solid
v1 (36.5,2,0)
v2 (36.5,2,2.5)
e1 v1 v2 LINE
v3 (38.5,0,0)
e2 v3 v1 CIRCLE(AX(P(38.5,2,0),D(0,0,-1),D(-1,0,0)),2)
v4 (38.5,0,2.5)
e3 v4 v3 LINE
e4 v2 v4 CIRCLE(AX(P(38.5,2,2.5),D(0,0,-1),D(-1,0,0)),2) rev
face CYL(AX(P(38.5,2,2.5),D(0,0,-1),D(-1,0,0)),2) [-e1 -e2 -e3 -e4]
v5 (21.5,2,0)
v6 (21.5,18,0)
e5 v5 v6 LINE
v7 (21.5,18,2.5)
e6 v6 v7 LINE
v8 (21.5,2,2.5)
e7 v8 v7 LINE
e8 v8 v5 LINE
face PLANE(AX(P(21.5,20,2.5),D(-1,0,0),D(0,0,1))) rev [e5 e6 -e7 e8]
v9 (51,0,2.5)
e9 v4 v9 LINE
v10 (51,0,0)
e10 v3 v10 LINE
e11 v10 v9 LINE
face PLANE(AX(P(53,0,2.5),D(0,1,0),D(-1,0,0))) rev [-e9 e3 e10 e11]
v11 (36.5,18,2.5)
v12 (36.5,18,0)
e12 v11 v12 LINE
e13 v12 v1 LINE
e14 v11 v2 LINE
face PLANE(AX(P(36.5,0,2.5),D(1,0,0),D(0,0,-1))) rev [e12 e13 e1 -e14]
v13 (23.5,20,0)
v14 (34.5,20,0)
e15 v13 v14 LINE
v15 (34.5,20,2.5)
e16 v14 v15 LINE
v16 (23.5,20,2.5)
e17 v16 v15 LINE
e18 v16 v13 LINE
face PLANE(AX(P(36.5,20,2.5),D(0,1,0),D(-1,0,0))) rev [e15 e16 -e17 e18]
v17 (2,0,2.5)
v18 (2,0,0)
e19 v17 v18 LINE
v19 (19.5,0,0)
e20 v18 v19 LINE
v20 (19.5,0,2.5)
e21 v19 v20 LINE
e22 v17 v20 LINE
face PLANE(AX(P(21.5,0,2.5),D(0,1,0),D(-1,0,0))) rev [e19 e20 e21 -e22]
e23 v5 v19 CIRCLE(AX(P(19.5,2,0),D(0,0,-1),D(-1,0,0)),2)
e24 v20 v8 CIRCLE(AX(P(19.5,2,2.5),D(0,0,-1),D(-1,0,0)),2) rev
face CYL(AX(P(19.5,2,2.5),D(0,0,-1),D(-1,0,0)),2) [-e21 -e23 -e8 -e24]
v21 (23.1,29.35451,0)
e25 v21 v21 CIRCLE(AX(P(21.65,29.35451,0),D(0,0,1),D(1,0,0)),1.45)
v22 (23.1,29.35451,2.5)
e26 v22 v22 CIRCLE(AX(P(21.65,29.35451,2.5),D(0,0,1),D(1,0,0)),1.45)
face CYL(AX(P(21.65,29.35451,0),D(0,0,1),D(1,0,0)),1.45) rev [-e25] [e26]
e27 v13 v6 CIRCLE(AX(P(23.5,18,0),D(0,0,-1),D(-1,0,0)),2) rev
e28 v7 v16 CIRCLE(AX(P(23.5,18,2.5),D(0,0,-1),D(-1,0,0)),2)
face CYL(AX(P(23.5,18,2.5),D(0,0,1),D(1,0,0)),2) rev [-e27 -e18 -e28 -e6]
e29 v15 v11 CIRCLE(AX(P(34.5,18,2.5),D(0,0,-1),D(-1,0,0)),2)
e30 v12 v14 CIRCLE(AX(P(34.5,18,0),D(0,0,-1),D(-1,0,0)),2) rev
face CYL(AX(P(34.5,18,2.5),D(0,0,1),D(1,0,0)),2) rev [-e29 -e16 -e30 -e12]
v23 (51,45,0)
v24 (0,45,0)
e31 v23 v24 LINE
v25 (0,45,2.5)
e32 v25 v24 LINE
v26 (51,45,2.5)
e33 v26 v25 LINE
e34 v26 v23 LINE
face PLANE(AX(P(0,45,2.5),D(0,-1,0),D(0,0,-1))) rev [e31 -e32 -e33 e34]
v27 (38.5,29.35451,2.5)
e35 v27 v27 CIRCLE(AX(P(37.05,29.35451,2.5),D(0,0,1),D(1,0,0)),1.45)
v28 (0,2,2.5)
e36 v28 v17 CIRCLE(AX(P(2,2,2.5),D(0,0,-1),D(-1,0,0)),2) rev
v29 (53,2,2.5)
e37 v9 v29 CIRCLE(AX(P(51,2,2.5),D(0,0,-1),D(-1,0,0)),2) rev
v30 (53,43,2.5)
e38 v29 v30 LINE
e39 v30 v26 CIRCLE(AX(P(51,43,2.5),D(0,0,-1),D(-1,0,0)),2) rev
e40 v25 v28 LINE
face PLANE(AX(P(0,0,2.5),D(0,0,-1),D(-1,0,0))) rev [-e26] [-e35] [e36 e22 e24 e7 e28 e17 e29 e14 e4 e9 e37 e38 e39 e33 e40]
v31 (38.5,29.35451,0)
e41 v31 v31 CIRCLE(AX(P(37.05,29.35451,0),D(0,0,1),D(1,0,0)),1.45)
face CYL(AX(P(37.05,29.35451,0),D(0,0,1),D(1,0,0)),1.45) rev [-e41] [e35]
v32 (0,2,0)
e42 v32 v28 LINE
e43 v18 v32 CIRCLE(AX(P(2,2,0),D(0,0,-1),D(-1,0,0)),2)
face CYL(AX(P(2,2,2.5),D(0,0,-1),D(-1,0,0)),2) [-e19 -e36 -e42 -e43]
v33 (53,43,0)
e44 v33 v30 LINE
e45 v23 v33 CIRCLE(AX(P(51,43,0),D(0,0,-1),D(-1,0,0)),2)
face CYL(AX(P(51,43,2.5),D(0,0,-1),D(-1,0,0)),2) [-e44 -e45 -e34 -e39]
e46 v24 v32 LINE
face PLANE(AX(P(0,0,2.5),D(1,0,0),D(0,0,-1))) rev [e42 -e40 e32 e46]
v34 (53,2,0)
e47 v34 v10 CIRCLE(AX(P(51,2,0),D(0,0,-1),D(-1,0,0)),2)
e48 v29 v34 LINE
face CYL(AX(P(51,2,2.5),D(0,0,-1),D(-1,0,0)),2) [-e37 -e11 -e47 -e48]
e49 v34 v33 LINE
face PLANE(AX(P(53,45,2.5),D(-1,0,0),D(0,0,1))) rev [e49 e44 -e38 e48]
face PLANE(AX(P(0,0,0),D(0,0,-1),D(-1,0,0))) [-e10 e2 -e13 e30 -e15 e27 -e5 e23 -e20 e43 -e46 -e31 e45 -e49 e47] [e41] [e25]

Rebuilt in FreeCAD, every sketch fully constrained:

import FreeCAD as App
import Part
import Sketcher

V = App.Vector
Q = App.Units.Quantity


def edges_at(feature, points):
    """Names of the edges that pass closest to the given points."""
    edges = feature.Shape.Edges
    near = lambda p: min(range(len(edges)), key=lambda i: edges[i].distToShape(Part.Vertex(*p))[0])
    return sorted({f"Edge{near(p) + 1}" for p in points})

doc = App.newDocument("Part")
body = doc.addObject("PartDesign::Body", "Body")

sketch1 = doc.addObject("Sketcher::SketchObject", "Sketch")
body.addObject(sketch1)
sketch1.AttachmentSupport = (doc.XY_Plane, [""])
sketch1.MapMode = "FlatFace"
sketch1.addGeometry(Part.LineSegment(V(0, 45, 0), V(0, 0, 0)), False)
sketch1.addGeometry(Part.LineSegment(V(0, 0, 0), V(22, 0, 0)), False)
sketch1.addGeometry(Part.LineSegment(V(22, 0, 0), V(22, 20, 0)), False)
sketch1.addGeometry(Part.LineSegment(V(22, 20, 0), V(36, 20, 0)), False)
sketch1.addGeometry(Part.LineSegment(V(36, 20, 0), V(36, 0, 0)), False)
sketch1.addGeometry(Part.LineSegment(V(36, 0, 0), V(53, 0, 0)), False)
sketch1.addGeometry(Part.LineSegment(V(53, 0, 0), V(53, 45, 0)), False)
sketch1.addGeometry(Part.LineSegment(V(53, 45, 0), V(0, 45, 0)), False)
sketch1.addConstraint(Sketcher.Constraint("Coincident", 0, 2, 1, 1))
sketch1.addConstraint(Sketcher.Constraint("Coincident", 1, 2, 2, 1))
sketch1.addConstraint(Sketcher.Constraint("Coincident", 2, 2, 3, 1))
sketch1.addConstraint(Sketcher.Constraint("Coincident", 3, 2, 4, 1))
sketch1.addConstraint(Sketcher.Constraint("Coincident", 4, 2, 5, 1))
sketch1.addConstraint(Sketcher.Constraint("Coincident", 5, 2, 6, 1))
sketch1.addConstraint(Sketcher.Constraint("Coincident", 6, 2, 7, 1))
sketch1.addConstraint(Sketcher.Constraint("Coincident", 7, 2, 0, 1))
sketch1.addConstraint(Sketcher.Constraint("Vertical", 0))
sketch1.addConstraint(Sketcher.Constraint("Horizontal", 1))
sketch1.addConstraint(Sketcher.Constraint("Vertical", 2))
sketch1.addConstraint(Sketcher.Constraint("Horizontal", 3))
sketch1.addConstraint(Sketcher.Constraint("Vertical", 4))
sketch1.addConstraint(Sketcher.Constraint("Horizontal", 5))
sketch1.addConstraint(Sketcher.Constraint("Vertical", 6))
sketch1.addConstraint(Sketcher.Constraint("Horizontal", 7))
sketch1.addConstraint(Sketcher.Constraint("Coincident", 0, 2, -1, 1))
sketch1.addConstraint(Sketcher.Constraint("PointOnObject", 4, 2, -1))
sketch1.addConstraint(Sketcher.Constraint("DistanceX", 3, 1, 3, 2, Q("15 mm")))
sketch1.addConstraint(Sketcher.Constraint("DistanceX", 7, 2, 7, 1, Q("53 mm")))
sketch1.addConstraint(Sketcher.Constraint("DistanceY", 0, 2, 0, 1, Q("45 mm")))
sketch1.addConstraint(Sketcher.Constraint("DistanceY", 2, 1, 2, 2, Q("20 mm")))
sketch1.addConstraint(Sketcher.Constraint("DistanceX", 1, 1, 1, 2, Q("21.5 mm")))
pad1 = doc.addObject("PartDesign::Pad", "Pad")
body.addObject(pad1)
pad1.Profile = sketch1
pad1.Length = 2.5

sketch2 = doc.addObject("Sketcher::SketchObject", "Sketch001")
body.addObject(sketch2)
sketch2.AttachmentSupport = (doc.XY_Plane, [""])
sketch2.MapMode = "FlatFace"
sketch2.AttachmentOffset = App.Placement(V(0, 0, 2.5), App.Rotation())
sketch2.addGeometry(Part.Circle(V(37, 29.4, 0), V(0, 0, 1), 1.4), False)
sketch2.addGeometry(Part.Circle(V(21.6, 29.4, 0), V(0, 0, 1), 1.4), False)
sketch2.addConstraint(Sketcher.Constraint("Equal", 0, 1))
sketch2.addConstraint(Sketcher.Constraint("Horizontal", 0, 3, 1, 3))
sketch2.addConstraint(Sketcher.Constraint("Diameter", 0, Q("2.9 mm")))
sketch2.addConstraint(Sketcher.Constraint("DistanceX", 1, 3, 0, 3, Q("15.4 mm")))
sketch2.addConstraint(Sketcher.Constraint("DistanceX", -1, 1, 0, 3, Q("37.05 mm")))
sketch2.addConstraint(Sketcher.Constraint("DistanceY", -1, 1, 0, 3, Q("29.35451 mm")))
pocket1 = doc.addObject("PartDesign::Pocket", "Pocket")
body.addObject(pocket1)
pocket1.Profile = sketch2
pocket1.Length = 2.5
doc.recompute()

fillet = doc.addObject("PartDesign::Fillet", "Fillet")
body.addObject(fillet)
fillet.Base = (pocket1, edges_at(pocket1, [
    (0, 0, 1.25),
    (53, 45, 1.25),
    (53, 0, 1.25),
    (36.5, 0, 1.25),
    (36.5, 20, 1.25),
    (21.5, 20, 1.25),
    (21.5, 0, 1.25),
]))
fillet.Radius = 2

doc.recompute()
